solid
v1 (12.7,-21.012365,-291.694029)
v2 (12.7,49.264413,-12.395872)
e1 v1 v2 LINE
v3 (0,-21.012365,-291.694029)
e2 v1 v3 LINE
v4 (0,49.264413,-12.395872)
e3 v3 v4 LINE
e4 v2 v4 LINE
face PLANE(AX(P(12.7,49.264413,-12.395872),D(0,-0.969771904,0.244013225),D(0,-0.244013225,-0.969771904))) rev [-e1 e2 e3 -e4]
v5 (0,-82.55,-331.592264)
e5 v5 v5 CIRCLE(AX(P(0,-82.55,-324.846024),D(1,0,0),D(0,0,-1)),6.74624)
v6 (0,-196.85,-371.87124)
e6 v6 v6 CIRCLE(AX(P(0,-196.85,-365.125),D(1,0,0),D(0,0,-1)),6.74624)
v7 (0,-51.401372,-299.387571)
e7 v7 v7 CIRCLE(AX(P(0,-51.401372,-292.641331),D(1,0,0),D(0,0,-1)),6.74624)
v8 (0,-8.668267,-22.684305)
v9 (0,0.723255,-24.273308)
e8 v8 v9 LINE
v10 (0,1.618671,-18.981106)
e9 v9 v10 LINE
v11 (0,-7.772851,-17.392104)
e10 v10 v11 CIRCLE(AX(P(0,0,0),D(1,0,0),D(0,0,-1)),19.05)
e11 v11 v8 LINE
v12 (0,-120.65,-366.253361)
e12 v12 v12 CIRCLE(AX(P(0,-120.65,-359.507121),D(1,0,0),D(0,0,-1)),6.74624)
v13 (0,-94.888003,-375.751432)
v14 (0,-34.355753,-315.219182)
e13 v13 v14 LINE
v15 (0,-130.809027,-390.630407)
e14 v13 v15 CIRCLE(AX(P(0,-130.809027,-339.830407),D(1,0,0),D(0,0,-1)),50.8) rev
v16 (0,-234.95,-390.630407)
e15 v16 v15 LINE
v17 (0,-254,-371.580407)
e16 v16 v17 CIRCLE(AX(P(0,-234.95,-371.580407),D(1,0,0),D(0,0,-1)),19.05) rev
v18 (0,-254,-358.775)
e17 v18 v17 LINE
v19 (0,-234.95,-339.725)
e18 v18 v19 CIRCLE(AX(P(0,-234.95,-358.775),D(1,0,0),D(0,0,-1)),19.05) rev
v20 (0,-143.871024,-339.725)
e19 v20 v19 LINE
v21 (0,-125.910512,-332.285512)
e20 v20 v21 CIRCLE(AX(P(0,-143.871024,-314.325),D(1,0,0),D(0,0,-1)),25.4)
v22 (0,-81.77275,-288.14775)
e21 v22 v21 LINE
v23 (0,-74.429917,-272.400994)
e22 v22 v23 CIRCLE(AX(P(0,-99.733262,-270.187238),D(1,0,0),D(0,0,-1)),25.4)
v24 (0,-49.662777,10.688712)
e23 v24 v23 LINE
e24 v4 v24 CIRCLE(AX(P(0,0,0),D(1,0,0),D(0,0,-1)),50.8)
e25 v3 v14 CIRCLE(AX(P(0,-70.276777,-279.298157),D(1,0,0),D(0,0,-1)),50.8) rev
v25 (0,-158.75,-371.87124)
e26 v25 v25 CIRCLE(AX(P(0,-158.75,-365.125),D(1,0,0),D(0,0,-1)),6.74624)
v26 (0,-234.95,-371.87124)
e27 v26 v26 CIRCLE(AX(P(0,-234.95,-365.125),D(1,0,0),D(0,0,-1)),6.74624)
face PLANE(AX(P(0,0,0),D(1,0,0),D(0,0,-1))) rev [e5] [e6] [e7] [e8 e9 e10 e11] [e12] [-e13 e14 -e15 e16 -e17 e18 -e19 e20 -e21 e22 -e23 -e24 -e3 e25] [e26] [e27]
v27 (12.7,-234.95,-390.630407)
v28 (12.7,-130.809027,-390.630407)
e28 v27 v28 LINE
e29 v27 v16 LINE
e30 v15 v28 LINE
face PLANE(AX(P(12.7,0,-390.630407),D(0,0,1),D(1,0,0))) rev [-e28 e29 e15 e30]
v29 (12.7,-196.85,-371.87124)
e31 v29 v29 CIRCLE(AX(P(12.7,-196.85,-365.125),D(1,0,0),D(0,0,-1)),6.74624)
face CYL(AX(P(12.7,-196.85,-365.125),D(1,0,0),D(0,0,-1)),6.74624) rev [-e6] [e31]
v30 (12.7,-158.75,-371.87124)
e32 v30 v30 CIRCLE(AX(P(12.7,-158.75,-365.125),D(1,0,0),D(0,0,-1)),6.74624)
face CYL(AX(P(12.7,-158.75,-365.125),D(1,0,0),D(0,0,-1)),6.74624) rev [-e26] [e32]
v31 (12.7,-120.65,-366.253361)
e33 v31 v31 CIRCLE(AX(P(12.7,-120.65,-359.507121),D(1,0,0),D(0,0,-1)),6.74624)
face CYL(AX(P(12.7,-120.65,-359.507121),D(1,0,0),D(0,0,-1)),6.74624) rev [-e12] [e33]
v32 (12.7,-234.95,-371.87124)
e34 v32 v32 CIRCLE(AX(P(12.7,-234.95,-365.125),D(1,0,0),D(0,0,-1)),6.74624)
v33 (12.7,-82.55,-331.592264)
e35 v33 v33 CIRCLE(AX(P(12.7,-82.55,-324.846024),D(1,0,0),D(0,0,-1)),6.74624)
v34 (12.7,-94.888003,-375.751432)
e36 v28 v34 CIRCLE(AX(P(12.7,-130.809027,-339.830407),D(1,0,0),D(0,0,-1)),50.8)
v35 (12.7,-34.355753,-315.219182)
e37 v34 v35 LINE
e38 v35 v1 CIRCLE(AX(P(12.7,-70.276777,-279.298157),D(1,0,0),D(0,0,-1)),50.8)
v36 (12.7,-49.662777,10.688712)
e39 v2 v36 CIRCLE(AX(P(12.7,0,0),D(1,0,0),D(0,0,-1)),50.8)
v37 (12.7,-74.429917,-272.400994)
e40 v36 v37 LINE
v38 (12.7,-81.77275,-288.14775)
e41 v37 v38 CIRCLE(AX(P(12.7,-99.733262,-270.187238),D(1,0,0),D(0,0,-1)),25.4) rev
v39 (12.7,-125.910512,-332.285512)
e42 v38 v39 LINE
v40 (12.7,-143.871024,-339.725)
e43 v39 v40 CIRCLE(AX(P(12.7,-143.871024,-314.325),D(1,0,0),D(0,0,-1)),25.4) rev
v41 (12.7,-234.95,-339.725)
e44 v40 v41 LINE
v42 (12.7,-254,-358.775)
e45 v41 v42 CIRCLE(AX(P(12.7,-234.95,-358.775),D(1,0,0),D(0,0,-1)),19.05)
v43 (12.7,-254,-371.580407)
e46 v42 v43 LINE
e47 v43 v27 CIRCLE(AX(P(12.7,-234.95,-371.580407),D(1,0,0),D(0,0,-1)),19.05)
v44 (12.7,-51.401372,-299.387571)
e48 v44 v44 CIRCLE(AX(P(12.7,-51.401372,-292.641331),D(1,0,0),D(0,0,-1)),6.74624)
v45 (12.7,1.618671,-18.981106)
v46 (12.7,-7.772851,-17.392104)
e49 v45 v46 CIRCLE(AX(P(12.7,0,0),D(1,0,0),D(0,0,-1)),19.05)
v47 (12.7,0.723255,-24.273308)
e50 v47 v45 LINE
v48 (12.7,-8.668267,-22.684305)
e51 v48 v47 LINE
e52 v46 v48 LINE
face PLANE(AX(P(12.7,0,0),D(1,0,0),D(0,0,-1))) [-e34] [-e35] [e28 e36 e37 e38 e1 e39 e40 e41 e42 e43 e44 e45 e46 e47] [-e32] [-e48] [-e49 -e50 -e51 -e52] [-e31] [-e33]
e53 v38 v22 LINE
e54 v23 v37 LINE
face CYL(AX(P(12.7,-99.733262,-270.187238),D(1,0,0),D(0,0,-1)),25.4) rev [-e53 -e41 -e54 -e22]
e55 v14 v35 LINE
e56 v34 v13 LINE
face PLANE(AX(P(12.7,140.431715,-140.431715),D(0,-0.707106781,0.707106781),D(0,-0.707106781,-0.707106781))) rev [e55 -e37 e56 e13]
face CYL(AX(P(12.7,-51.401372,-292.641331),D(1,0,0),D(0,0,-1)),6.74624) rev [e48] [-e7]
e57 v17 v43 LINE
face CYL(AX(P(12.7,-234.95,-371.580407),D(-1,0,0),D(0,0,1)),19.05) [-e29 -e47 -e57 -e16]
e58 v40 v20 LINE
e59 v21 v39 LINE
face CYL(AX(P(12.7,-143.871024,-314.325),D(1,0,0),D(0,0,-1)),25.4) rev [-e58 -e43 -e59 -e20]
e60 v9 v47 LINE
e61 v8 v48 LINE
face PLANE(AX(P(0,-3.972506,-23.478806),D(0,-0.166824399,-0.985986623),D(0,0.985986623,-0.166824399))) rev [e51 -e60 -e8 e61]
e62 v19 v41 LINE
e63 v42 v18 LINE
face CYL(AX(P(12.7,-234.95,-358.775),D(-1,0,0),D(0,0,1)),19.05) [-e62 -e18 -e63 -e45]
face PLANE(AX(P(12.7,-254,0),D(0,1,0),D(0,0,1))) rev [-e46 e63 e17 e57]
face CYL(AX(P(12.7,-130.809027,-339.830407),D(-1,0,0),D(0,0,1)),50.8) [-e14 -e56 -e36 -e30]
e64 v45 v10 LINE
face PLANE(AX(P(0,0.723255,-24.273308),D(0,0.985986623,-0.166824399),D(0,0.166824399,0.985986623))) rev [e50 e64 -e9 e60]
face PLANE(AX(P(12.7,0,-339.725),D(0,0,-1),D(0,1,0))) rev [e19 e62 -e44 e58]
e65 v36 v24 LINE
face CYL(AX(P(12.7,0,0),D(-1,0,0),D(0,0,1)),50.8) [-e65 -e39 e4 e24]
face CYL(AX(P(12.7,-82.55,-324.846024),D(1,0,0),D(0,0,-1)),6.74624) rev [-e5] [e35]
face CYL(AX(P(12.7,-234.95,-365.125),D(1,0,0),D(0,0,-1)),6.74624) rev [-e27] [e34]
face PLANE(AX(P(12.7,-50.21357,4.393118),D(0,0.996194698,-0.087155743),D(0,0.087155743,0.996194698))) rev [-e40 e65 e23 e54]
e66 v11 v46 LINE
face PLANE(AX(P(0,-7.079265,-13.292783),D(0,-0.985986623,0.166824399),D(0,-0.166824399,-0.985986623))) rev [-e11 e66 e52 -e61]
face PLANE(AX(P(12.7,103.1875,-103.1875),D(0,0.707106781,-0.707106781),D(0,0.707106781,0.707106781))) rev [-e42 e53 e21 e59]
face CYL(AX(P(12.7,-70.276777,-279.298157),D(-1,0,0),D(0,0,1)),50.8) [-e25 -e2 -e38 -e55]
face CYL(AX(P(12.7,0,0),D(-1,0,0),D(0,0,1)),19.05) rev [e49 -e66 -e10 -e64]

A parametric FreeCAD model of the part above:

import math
import FreeCAD as App
import Part
import Sketcher
from FreeCAD import Vector
Q = App.Units.Quantity


def edges_at(feature, points):
    """Names of the edges that pass closest to the given points."""
    edges = feature.Shape.Edges
    near = lambda p: min(range(len(edges)), key=lambda i: edges[i].distToShape(Part.Vertex(*p))[0])
    return sorted({f"Edge{near(p) + 1}" for p in points})

doc = App.newDocument("Part")
body = doc.addObject("PartDesign::Body", "Body")

# Sketch on YZ plane
sketch1 = doc.addObject("Sketcher::SketchObject", "Sketch")
body.addObject(sketch1)
sketch1.AttachmentSupport = (doc.YZ_Plane, [""])
sketch1.MapMode = "FlatFace"
sketch1.addGeometry(Part.LineSegment(Vector(-110, -391, 0), Vector(-24, -305, 0)), False)
sketch1.addGeometry(Part.LineSegment(Vector(-24, -305, 0), Vector(49, -12, 0)), False)
sketch1.addGeometry(Part.ArcOfCircle(Part.Circle(Vector(0, 0, 0), Vector(0, 0, 1), 51), math.radians(-14), math.radians(168)), False)
sketch1.addGeometry(Part.LineSegment(Vector(-50, 11, 0), Vector(-75, -282, 0)), False)
sketch1.addGeometry(Part.LineSegment(Vector(-75, -282, 0), Vector(-133, -340, 0)), False)
sketch1.addGeometry(Part.LineSegment(Vector(-133, -340, 0), Vector(-254, -340, 0)), False)
sketch1.addGeometry(Part.LineSegment(Vector(-254, -340, 0), Vector(-254, -391, 0)), False)
sketch1.addGeometry(Part.LineSegment(Vector(-254, -391, 0), Vector(-110, -391, 0)), False)
sketch1.addGeometry(Part.Circle(Vector(0, 0, 0), Vector(0, 0, 1), 19), False)
sketch1.addConstraint(Sketcher.Constraint("Coincident", 0, 2, 1, 1))
sketch1.addConstraint(Sketcher.Constraint("Tangent", 1, 2, 2, 1))
sketch1.addConstraint(Sketcher.Constraint("Coincident", 2, 2, 3, 1))
sketch1.addConstraint(Sketcher.Constraint("Coincident", 3, 2, 4, 1))
sketch1.addConstraint(Sketcher.Constraint("Coincident", 4, 2, 5, 1))
sketch1.addConstraint(Sketcher.Constraint("Coincident", 5, 2, 6, 1))
sketch1.addConstraint(Sketcher.Constraint("Coincident", 6, 2, 7, 1))
sketch1.addConstraint(Sketcher.Constraint("Coincident", 7, 2, 0, 1))
sketch1.addConstraint(Sketcher.Constraint("Horizontal", 5))
sketch1.addConstraint(Sketcher.Constraint("Vertical", 6))
sketch1.addConstraint(Sketcher.Constraint("Horizontal", 7))
sketch1.addConstraint(Sketcher.Constraint("Coincident", 2, 3, -1, 1))
sketch1.addConstraint(Sketcher.Constraint("Coincident", 8, 3, -1, 1))
sketch1.addConstraint(Sketcher.Constraint("Parallel", 0, 4))
sketch1.addConstraint(Sketcher.Constraint("Radius", 2, Q("2 in")))
sketch1.addConstraint(Sketcher.Constraint("Diameter", 8, Q("1.5 in")))
sketch1.addConstraint(Sketcher.Constraint("DistanceX", 5, 2, -1, 1, Q("10 in")))
sketch1.addConstraint(Sketcher.Constraint("Angle", 0, Q("45 deg")))
sketch1.addConstraint(Sketcher.Constraint("Angle", 3, Q("-95 deg")))
sketch1.addConstraint(Sketcher.Constraint("DistanceX", 3, 2, 0, 2, Q("2 in")))
sketch1.addConstraint(Sketcher.Constraint("DistanceX", 5, 2, 5, 1, Q("4.75 in")))
sketch1.addConstraint(Sketcher.Constraint("DistanceY", 4, 2, -1, 1, Q("13.375 in")))
sketch1.addConstraint(Sketcher.Constraint("Distance", 1, 302.033101))
sketch1.addConstraint(Sketcher.Constraint("DistanceX", 7, 1, 7, 2, 144.233022))
sketch1.addConstraint(Sketcher.Constraint("DistanceY", 0, 2, 2, 2, 315.9878))
pad1 = doc.addObject("PartDesign::Pad", "Pad")
body.addObject(pad1)
pad1.Profile = sketch1
pad1.Length = Q("0.5 in")
doc.recompute()

fillet = doc.addObject("PartDesign::Fillet", "Fillet")
body.addObject(fillet)
fillet.Base = (pad1, edges_at(pad1, [(6.35, -133.35, -339.725), (6.35, -75.236, -281.611)]))
fillet.Radius = Q("1 in")
doc.recompute()

fillet2 = doc.addObject("PartDesign::Fillet", "Fillet001")
body.addObject(fillet2)
fillet2.Base = (fillet, edges_at(fillet, [(6.35, -24.436, -305.299), (6.35, -109.767, -390.63)]))
fillet2.Radius = Q("2 in")

# Sketch on YZ plane
sketch2 = doc.addObject("Sketcher::SketchObject", "Sketch001")
body.addObject(sketch2)
sketch2.AttachmentSupport = (doc.YZ_Plane, [""])
sketch2.MapMode = "FlatFace"
sketch2.AttachmentOffset = App.Placement(Vector(0, 0, 0.5 * 25.4), App.Rotation())
sketch2.addGeometry(Part.Circle(Vector(-235, -365, 0), Vector(0, 0, 1), 7), False)
sketch2.addGeometry(Part.Circle(Vector(-197, -365, 0), Vector(0, 0, 1), 7), False)
sketch2.addGeometry(Part.Circle(Vector(-159, -365, 0), Vector(0, 0, 1), 7), False)
sketch2.addGeometry(Part.Circle(Vector(-121, -360, 0), Vector(0, 0, 1), 7), False)
sketch2.addGeometry(Part.Circle(Vector(-83, -325, 0), Vector(0, 0, 1), 7), False)
sketch2.addConstraint(Sketcher.Constraint("Equal", 0, 1))
sketch2.addConstraint(Sketcher.Constraint("Equal", 1, 2))
sketch2.addConstraint(Sketcher.Constraint("Equal", 2, 3))
sketch2.addConstraint(Sketcher.Constraint("Equal", 3, 4))
sketch2.addConstraint(Sketcher.Constraint("Horizontal", 0, 3, 1, 3))
sketch2.addConstraint(Sketcher.Constraint("Horizontal", 1, 3, 2, 3))
sketch2.addConstraint(Sketcher.Constraint("DistanceX", 0, 3, 2, 3, Q("3 in")))
sketch2.addConstraint(Sketcher.Constraint("DistanceX", 1, 3, 3, 3, Q("3 in")))
sketch2.addConstraint(Sketcher.Constraint("DistanceX", 2, 3, 4, 3, Q("3 in")))
sketch2.addConstraint(Sketcher.Constraint("Diameter", 0, Q("0.5312 in")))
sketch2.addConstraint(Sketcher.Constraint("DistanceX", 0, 3, 1, 3, Q("1.5 in")))
sketch2.addConstraint(Sketcher.Constraint("DistanceX", 0, 3, -1, 1, Q("9.25 in")))
sketch2.addConstraint(Sketcher.Constraint("DistanceY", 0, 3, -1, 1, Q("14.375 in")))
sketch2.addConstraint(Sketcher.Constraint("DistanceY", 3, 3, -1, 1, 359.507121))
sketch2.addConstraint(Sketcher.Constraint("DistanceY", 4, 3, -1, 1, 324.846024))
doc.recompute()
hole = doc.addObject("PartDesign::Hole", "Hole")
body.addObject(hole)
hole.Profile = sketch2
hole.ThreadType = "None"
hole.Diameter = Q("0.5312 in")
hole.DepthType = "Dimension"
hole.Depth = Q("1.5 in")
hole.DrillPoint = "Angled"
hole.DrillPointAngle = 118
doc.recompute()

fillet3 = doc.addObject("PartDesign::Fillet", "Fillet002")
body.addObject(fillet3)
fillet3.Base = (hole, edges_at(hole, [(6.35, -254, -390.63), (6.35, -254, -339.725)]))
fillet3.Radius = Q("0.75 in")

# Sketch on YZ plane
sketch3 = doc.addObject("Sketcher::SketchObject", "Sketch002")
body.addObject(sketch3)
sketch3.AttachmentSupport = (doc.YZ_Plane, [""])
sketch3.MapMode = "FlatFace"
sketch3.AttachmentOffset = App.Placement(Vector(0, 0, 0.5 * 25.4), App.Rotation())
sketch3.addGeometry(Part.LineSegment(Vector(1, -24, 0), Vector(2, -15, 0)), False)
sketch3.addGeometry(Part.LineSegment(Vector(2, -15, 0), Vector(-7, -13, 0)), False)
sketch3.addGeometry(Part.LineSegment(Vector(-7, -13, 0), Vector(-9, -23, 0)), False)
sketch3.addGeometry(Part.LineSegment(Vector(-9, -23, 0), Vector(1, -24, 0)), False)
sketch3.addConstraint(Sketcher.Constraint("Coincident", 0, 2, 1, 1))
sketch3.addConstraint(Sketcher.Constraint("Coincident", 1, 2, 2, 1))
sketch3.addConstraint(Sketcher.Constraint("Coincident", 2, 2, 3, 1))
sketch3.addConstraint(Sketcher.Constraint("Coincident", 3, 2, 0, 1))
sketch3.addConstraint(Sketcher.Constraint("Perpendicular", 0, 1))
sketch3.addConstraint(Sketcher.Constraint("Perpendicular", 1, 2))
sketch3.addConstraint(Sketcher.Constraint("Perpendicular", 2, 3))
sketch3.addConstraint(Sketcher.Constraint("Equal", 0, 1))
sketch3.addConstraint(Sketcher.Constraint("Distance", 0, Q("0.375 in")))
sketch3.addConstraint(Sketcher.Constraint("DistanceY", 2, 2, 0, 2, 7.80252))
sketch3.addConstraint(Sketcher.Constraint("DistanceX", -1, 1, 0, 2, 2.312258))
sketch3.addConstraint(Sketcher.Constraint("DistanceY", 0, 2, -1, 1, 14.881785))
pocket1 = doc.addObject("PartDesign::Pocket", "Pocket")
body.addObject(pocket1)
pocket1.Profile = sketch3
pocket1.Type = "ThroughAll"

# Sketch on YZ plane
sketch4 = doc.addObject("Sketcher::SketchObject", "Sketch003")
body.addObject(sketch4)
sketch4.AttachmentSupport = (doc.YZ_Plane, [""])
sketch4.MapMode = "FlatFace"
sketch4.AttachmentOffset = App.Placement(Vector(0, 0, 0.5 * 25.4), App.Rotation())
sketch4.addGeometry(Part.Circle(Vector(-51, -293, 0), Vector(0, 0, 1), 7), False)
sketch4.addConstraint(Sketcher.Constraint("Diameter", 0, Q("0.5312 in")))
sketch4.addConstraint(Sketcher.Constraint("DistanceX", 0, 3, -1, 1, 51.401372))
sketch4.addConstraint(Sketcher.Constraint("DistanceY", 0, 3, -1, 1, 292.641331))
doc.recompute()
hole2 = doc.addObject("PartDesign::Hole", "Hole001")
body.addObject(hole2)
hole2.Profile = sketch4
hole2.ThreadType = "None"
hole2.Diameter = Q("0.5312 in")
hole2.DepthType = "ThroughAll"

doc.recompute()
